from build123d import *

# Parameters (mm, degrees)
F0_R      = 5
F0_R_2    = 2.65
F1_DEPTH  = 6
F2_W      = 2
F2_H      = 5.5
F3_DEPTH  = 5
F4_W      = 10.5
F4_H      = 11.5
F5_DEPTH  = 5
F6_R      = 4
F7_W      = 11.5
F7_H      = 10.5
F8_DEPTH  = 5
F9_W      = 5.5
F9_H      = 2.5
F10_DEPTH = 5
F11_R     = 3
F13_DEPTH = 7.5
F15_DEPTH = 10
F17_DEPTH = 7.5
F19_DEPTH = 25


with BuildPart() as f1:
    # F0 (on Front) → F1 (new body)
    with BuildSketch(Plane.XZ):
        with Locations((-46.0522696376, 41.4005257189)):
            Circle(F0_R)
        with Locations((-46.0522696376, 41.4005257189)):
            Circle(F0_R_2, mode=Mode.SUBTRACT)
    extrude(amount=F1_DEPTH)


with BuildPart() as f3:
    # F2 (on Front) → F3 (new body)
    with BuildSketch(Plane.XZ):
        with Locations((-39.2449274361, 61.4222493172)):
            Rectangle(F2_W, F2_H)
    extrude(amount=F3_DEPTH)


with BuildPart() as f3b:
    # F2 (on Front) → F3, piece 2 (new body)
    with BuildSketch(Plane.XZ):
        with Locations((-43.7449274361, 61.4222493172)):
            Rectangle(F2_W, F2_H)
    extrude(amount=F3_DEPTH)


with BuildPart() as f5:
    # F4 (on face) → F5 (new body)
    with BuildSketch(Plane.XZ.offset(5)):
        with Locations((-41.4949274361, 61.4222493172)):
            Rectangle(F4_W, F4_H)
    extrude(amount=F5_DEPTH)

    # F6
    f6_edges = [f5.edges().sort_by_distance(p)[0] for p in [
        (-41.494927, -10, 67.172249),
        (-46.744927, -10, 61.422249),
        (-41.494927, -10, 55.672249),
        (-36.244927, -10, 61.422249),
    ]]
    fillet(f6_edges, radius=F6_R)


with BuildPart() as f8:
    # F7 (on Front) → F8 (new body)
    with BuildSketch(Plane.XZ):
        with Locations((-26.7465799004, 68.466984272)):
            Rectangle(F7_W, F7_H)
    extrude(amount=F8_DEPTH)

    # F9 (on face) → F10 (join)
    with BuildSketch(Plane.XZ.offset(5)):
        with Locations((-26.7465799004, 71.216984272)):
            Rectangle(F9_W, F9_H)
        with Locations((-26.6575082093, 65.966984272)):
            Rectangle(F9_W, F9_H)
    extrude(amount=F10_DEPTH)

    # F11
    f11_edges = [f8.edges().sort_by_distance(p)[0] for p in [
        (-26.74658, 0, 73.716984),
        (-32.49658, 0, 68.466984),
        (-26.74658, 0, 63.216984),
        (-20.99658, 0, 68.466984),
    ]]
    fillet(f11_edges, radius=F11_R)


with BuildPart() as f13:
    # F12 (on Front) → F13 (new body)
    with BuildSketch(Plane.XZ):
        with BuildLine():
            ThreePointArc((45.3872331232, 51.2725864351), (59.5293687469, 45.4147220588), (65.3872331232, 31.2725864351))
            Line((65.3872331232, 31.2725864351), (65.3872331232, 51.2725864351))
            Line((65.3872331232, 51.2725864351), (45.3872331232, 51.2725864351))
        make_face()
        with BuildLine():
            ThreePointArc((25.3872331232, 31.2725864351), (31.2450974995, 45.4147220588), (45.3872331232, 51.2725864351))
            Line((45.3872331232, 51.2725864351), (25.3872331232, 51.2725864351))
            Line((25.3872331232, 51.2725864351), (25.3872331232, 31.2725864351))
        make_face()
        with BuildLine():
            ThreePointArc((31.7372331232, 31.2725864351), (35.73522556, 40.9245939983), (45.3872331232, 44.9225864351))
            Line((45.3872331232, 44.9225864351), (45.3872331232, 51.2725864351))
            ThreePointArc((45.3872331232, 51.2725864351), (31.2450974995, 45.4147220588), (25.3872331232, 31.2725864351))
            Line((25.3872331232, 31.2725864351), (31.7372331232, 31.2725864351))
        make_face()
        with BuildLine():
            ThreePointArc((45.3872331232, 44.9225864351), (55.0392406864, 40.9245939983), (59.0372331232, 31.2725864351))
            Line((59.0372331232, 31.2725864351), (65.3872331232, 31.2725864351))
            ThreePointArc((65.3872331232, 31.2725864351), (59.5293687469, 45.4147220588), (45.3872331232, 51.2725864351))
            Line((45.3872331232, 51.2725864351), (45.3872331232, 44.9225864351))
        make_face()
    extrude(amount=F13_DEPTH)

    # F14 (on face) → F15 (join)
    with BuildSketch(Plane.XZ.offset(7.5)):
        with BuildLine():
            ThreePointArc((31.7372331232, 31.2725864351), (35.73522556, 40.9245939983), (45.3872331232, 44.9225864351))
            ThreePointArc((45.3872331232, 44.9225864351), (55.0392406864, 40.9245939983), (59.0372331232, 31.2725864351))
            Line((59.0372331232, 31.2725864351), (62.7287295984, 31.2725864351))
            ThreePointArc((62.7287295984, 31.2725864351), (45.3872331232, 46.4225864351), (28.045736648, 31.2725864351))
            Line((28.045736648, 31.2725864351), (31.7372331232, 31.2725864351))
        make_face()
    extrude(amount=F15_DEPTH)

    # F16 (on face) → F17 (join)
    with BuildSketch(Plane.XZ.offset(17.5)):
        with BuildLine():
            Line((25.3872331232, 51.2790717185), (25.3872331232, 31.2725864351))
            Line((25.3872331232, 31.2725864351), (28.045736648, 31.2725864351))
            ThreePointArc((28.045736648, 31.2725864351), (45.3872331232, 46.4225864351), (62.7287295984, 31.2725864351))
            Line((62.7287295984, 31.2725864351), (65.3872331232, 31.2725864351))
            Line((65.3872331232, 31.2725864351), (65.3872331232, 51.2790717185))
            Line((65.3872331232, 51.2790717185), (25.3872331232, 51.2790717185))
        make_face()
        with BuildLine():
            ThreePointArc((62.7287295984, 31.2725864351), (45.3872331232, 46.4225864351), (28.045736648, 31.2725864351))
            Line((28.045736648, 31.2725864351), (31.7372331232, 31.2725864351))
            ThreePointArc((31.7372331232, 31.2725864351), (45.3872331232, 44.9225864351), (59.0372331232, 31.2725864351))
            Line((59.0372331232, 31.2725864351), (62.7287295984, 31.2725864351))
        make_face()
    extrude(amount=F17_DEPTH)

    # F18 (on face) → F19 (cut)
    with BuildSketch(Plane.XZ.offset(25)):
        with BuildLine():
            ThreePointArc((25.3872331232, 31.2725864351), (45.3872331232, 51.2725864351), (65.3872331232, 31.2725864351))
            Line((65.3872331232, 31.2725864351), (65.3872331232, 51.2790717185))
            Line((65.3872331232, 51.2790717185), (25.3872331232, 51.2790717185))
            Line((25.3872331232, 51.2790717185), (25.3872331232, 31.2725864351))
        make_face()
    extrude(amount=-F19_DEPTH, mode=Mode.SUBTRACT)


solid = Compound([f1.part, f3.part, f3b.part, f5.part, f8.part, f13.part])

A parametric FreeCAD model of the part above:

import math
import FreeCAD as App
import Part
import Sketcher
Q = App.Units.Quantity


def edges_at(feature, points):
    """Names of the edges that pass closest to the given points."""
    edges = feature.Shape.Edges
    near = lambda p: min(range(len(edges)), key=lambda i: edges[i].distToShape(Part.Vertex(*p))[0])
    return sorted({f"Edge{near(p) + 1}" for p in points})

doc = App.newDocument("Part")
body = doc.addObject("PartDesign::Body", "Body")

# Sketch on XZ plane
sketch1 = body.newObject("Sketcher::SketchObject", "Sketch")
sketch1.AttachmentSupport = (doc.getObject("XZ_Plane"), [""])
sketch1.MapMode = "FlatFace"
sketch1.addGeometry(Part.Circle(App.Vector(-46.05227, 41.400526, 0), App.Vector(0, 0, 1), 5), False)
sketch1.addGeometry(Part.Circle(App.Vector(-46.05227, 41.400526, 0), App.Vector(0, 0, 1), 2.65), False)
sketch1.addConstraint(Sketcher.Constraint("Coincident", 1, 3, 0, 3))
sketch1.addConstraint(Sketcher.Constraint("Diameter", 0, Q("10 mm")))
sketch1.addConstraint(Sketcher.Constraint("Diameter", 1, Q("5.3 mm")))
sketch1.addConstraint(Sketcher.Constraint("DistanceX", 0, 3, -1, 1, Q("46.05227 mm")))
sketch1.addConstraint(Sketcher.Constraint("DistanceY", -1, 1, 0, 3, Q("41.400526 mm")))
pad1 = body.newObject("PartDesign::Pad", "Pad")
pad1.Profile = sketch1
pad1.Length = 6
body2 = doc.addObject("PartDesign::Body", "Body001")

# Sketch on XZ plane
sketch2 = body2.newObject("Sketcher::SketchObject", "Sketch001")
sketch2.AttachmentSupport = (doc.getObject("XZ_Plane001"), [""])
sketch2.MapMode = "FlatFace"
sketch2.addGeometry(Part.LineSegment(App.Vector(-40.244927, 64.172249, 0), App.Vector(-40.244927, 58.672249, 0)), False)
sketch2.addGeometry(Part.LineSegment(App.Vector(-40.244927, 58.672249, 0), App.Vector(-38.244927, 58.672249, 0)), False)
sketch2.addGeometry(Part.LineSegment(App.Vector(-38.244927, 58.672249, 0), App.Vector(-38.244927, 64.172249, 0)), False)
sketch2.addGeometry(Part.LineSegment(App.Vector(-38.244927, 64.172249, 0), App.Vector(-40.244927, 64.172249, 0)), False)
sketch2.addConstraint(Sketcher.Constraint("Coincident", 0, 2, 1, 1))
sketch2.addConstraint(Sketcher.Constraint("Coincident", 1, 2, 2, 1))
sketch2.addConstraint(Sketcher.Constraint("Coincident", 2, 2, 3, 1))
sketch2.addConstraint(Sketcher.Constraint("Coincident", 3, 2, 0, 1))
sketch2.addConstraint(Sketcher.Constraint("Vertical", 0))
sketch2.addConstraint(Sketcher.Constraint("Horizontal", 1))
sketch2.addConstraint(Sketcher.Constraint("Vertical", 2))
sketch2.addConstraint(Sketcher.Constraint("Horizontal", 3))
sketch2.addConstraint(Sketcher.Constraint("DistanceX", 1, 1, 1, 2, Q("2 mm")))
sketch2.addConstraint(Sketcher.Constraint("DistanceY", 0, 2, 0, 1, Q("5.5 mm")))
sketch2.addConstraint(Sketcher.Constraint("DistanceY", -1, 1, 0, 2, Q("58.672249 mm")))
sketch2.addConstraint(Sketcher.Constraint("DistanceX", 0, 2, -1, 1, Q("40.244927 mm")))
pad2 = body2.newObject("PartDesign::Pad", "Pad001")
pad2.Profile = sketch2
pad2.Length = 5
body3 = doc.addObject("PartDesign::Body", "Body002")

# Sketch on XZ plane
sketch3 = body3.newObject("Sketcher::SketchObject", "Sketch002")
sketch3.AttachmentSupport = (doc.getObject("XZ_Plane002"), [""])
sketch3.MapMode = "FlatFace"
sketch3.addGeometry(Part.LineSegment(App.Vector(-44.744927, 64.172249, 0), App.Vector(-44.744927, 58.672249, 0)), False)
sketch3.addGeometry(Part.LineSegment(App.Vector(-44.744927, 58.672249, 0), App.Vector(-42.744927, 58.672249, 0)), False)
sketch3.addGeometry(Part.LineSegment(App.Vector(-42.744927, 58.672249, 0), App.Vector(-42.744927, 64.172249, 0)), False)
sketch3.addGeometry(Part.LineSegment(App.Vector(-42.744927, 64.172249, 0), App.Vector(-44.744927, 64.172249, 0)), False)
sketch3.addConstraint(Sketcher.Constraint("Coincident", 0, 2, 1, 1))
sketch3.addConstraint(Sketcher.Constraint("Coincident", 1, 2, 2, 1))
sketch3.addConstraint(Sketcher.Constraint("Coincident", 2, 2, 3, 1))
sketch3.addConstraint(Sketcher.Constraint("Coincident", 3, 2, 0, 1))
sketch3.addConstraint(Sketcher.Constraint("Vertical", 0))
sketch3.addConstraint(Sketcher.Constraint("Horizontal", 1))
sketch3.addConstraint(Sketcher.Constraint("Vertical", 2))
sketch3.addConstraint(Sketcher.Constraint("Horizontal", 3))
sketch3.addConstraint(Sketcher.Constraint("DistanceX", 1, 1, 1, 2, Q("2 mm")))
sketch3.addConstraint(Sketcher.Constraint("DistanceY", 0, 2, 0, 1, Q("5.5 mm")))
sketch3.addConstraint(Sketcher.Constraint("DistanceY", -1, 1, 0, 2, Q("58.672249 mm")))
sketch3.addConstraint(Sketcher.Constraint("DistanceX", 0, 2, -1, 1, Q("44.744927 mm")))
pad3 = body3.newObject("PartDesign::Pad", "Pad002")
pad3.Profile = sketch3
pad3.Length = 5
body4 = doc.addObject("PartDesign::Body", "Body003")

# Sketch on XZ plane
sketch4 = body4.newObject("Sketcher::SketchObject", "Sketch003")
sketch4.AttachmentSupport = (doc.getObject("XZ_Plane003"), [""])
sketch4.MapMode = "FlatFace"
sketch4.AttachmentOffset = App.Placement(App.Vector(0, 0, 5), App.Rotation())
sketch4.addGeometry(Part.LineSegment(App.Vector(-46.744927, 67.172249, 0), App.Vector(-46.744927, 55.672249, 0)), False)
sketch4.addGeometry(Part.LineSegment(App.Vector(-46.744927, 55.672249, 0), App.Vector(-36.244927, 55.672249, 0)), False)
sketch4.addGeometry(Part.LineSegment(App.Vector(-36.244927, 55.672249, 0), App.Vector(-36.244927, 67.172249, 0)), False)
sketch4.addGeometry(Part.LineSegment(App.Vector(-36.244927, 67.172249, 0), App.Vector(-46.744927, 67.172249, 0)), False)
sketch4.addConstraint(Sketcher.Constraint("Coincident", 0, 2, 1, 1))
sketch4.addConstraint(Sketcher.Constraint("Coincident", 1, 2, 2, 1))
sketch4.addConstraint(Sketcher.Constraint("Coincident", 2, 2, 3, 1))
sketch4.addConstraint(Sketcher.Constraint("Coincident", 3, 2, 0, 1))
sketch4.addConstraint(Sketcher.Constraint("Vertical", 0))
sketch4.addConstraint(Sketcher.Constraint("Horizontal", 1))
sketch4.addConstraint(Sketcher.Constraint("Vertical", 2))
sketch4.addConstraint(Sketcher.Constraint("Horizontal", 3))
sketch4.addConstraint(Sketcher.Constraint("DistanceX", 1, 1, 1, 2, Q("10.5 mm")))
sketch4.addConstraint(Sketcher.Constraint("DistanceY", 0, 2, 0, 1, Q("11.5 mm")))
sketch4.addConstraint(Sketcher.Constraint("DistanceY", -1, 1, 0, 2, Q("55.672249 mm")))
sketch4.addConstraint(Sketcher.Constraint("DistanceX", 0, 2, -1, 1, Q("46.744927 mm")))
pad4 = body4.newObject("PartDesign::Pad", "Pad003")
pad4.Profile = sketch4
pad4.Length = 5
doc.recompute()

fillet = body4.newObject("PartDesign::Fillet", "Fillet")
fillet.Base = (pad4, edges_at(pad4, [
    (-41.495, -10, 67.172),
    (-46.745, -10, 61.422),
    (-41.495, -10, 55.672),
    (-36.245, -10, 61.422),
]))
fillet.Radius = 4
body5 = doc.addObject("PartDesign::Body", "Body004")

# Sketch on XZ plane
sketch5 = body5.newObject("Sketcher::SketchObject", "Sketch004")
sketch5.AttachmentSupport = (doc.getObject("XZ_Plane004"), [""])
sketch5.MapMode = "FlatFace"
sketch5.addGeometry(Part.LineSegment(App.Vector(-32.49658, 73.716984, 0), App.Vector(-32.49658, 63.216984, 0)), False)
sketch5.addGeometry(Part.LineSegment(App.Vector(-32.49658, 63.216984, 0), App.Vector(-20.99658, 63.216984, 0)), False)
sketch5.addGeometry(Part.LineSegment(App.Vector(-20.99658, 63.216984, 0), App.Vector(-20.99658, 73.716984, 0)), False)
sketch5.addGeometry(Part.LineSegment(App.Vector(-20.99658, 73.716984, 0), App.Vector(-32.49658, 73.716984, 0)), False)
sketch5.addConstraint(Sketcher.Constraint("Coincident", 0, 2, 1, 1))
sketch5.addConstraint(Sketcher.Constraint("Coincident", 1, 2, 2, 1))
sketch5.addConstraint(Sketcher.Constraint("Coincident", 2, 2, 3, 1))
sketch5.addConstraint(Sketcher.Constraint("Coincident", 3, 2, 0, 1))
sketch5.addConstraint(Sketcher.Constraint("Vertical", 0))
sketch5.addConstraint(Sketcher.Constraint("Horizontal", 1))
sketch5.addConstraint(Sketcher.Constraint("Vertical", 2))
sketch5.addConstraint(Sketcher.Constraint("Horizontal", 3))
sketch5.addConstraint(Sketcher.Constraint("DistanceX", 1, 1, 1, 2, Q("11.5 mm")))
sketch5.addConstraint(Sketcher.Constraint("DistanceY", 0, 2, 0, 1, Q("10.5 mm")))
sketch5.addConstraint(Sketcher.Constraint("DistanceX", 0, 2, -1, 1, Q("32.49658 mm")))
sketch5.addConstraint(Sketcher.Constraint("DistanceY", -1, 1, 0, 2, Q("63.216984 mm")))
pad5 = body5.newObject("PartDesign::Pad", "Pad004")
pad5.Profile = sketch5
pad5.Length = 5

# Sketch on XZ plane
sketch6 = body5.newObject("Sketcher::SketchObject", "Sketch005")
sketch6.AttachmentSupport = (doc.getObject("XZ_Plane004"), [""])
sketch6.MapMode = "FlatFace"
sketch6.AttachmentOffset = App.Placement(App.Vector(0, 0, 5), App.Rotation())
sketch6.addGeometry(Part.LineSegment(App.Vector(-29.49658, 72.466984, 0), App.Vector(-29.49658, 69.966984, 0)), False)
sketch6.addGeometry(Part.LineSegment(App.Vector(-29.49658, 69.966984, 0), App.Vector(-23.99658, 69.966984, 0)), False)
sketch6.addGeometry(Part.LineSegment(App.Vector(-23.99658, 69.966984, 0), App.Vector(-23.99658, 72.466984, 0)), False)
sketch6.addGeometry(Part.LineSegment(App.Vector(-23.99658, 72.466984, 0), App.Vector(-29.49658, 72.466984, 0)), False)
sketch6.addGeometry(Part.LineSegment(App.Vector(-29.407508, 67.216984, 0), App.Vector(-29.407508, 64.716984, 0)), False)
sketch6.addGeometry(Part.LineSegment(App.Vector(-29.407508, 64.716984, 0), App.Vector(-23.907508, 64.716984, 0)), False)
sketch6.addGeometry(Part.LineSegment(App.Vector(-23.907508, 64.716984, 0), App.Vector(-23.907508, 67.216984, 0)), False)
sketch6.addGeometry(Part.LineSegment(App.Vector(-23.907508, 67.216984, 0), App.Vector(-29.407508, 67.216984, 0)), False)
sketch6.addConstraint(Sketcher.Constraint("Coincident", 0, 2, 1, 1))
sketch6.addConstraint(Sketcher.Constraint("Coincident", 1, 2, 2, 1))
sketch6.addConstraint(Sketcher.Constraint("Coincident", 2, 2, 3, 1))
sketch6.addConstraint(Sketcher.Constraint("Coincident", 3, 2, 0, 1))
sketch6.addConstraint(Sketcher.Constraint("Coincident", 4, 2, 5, 1))
sketch6.addConstraint(Sketcher.Constraint("Coincident", 5, 2, 6, 1))
sketch6.addConstraint(Sketcher.Constraint("Coincident", 6, 2, 7, 1))
sketch6.addConstraint(Sketcher.Constraint("Coincident", 7, 2, 4, 1))
sketch6.addConstraint(Sketcher.Constraint("Vertical", 0))
sketch6.addConstraint(Sketcher.Constraint("Horizontal", 1))
sketch6.addConstraint(Sketcher.Constraint("Vertical", 2))
sketch6.addConstraint(Sketcher.Constraint("Horizontal", 3))
sketch6.addConstraint(Sketcher.Constraint("Vertical", 4))
sketch6.addConstraint(Sketcher.Constraint("Horizontal", 5))
sketch6.addConstraint(Sketcher.Constraint("Vertical", 6))
sketch6.addConstraint(Sketcher.Constraint("Horizontal", 7))
sketch6.addConstraint(Sketcher.Constraint("Equal", 3, 5))
sketch6.addConstraint(Sketcher.Constraint("Equal", 2, 4))
sketch6.addConstraint(Sketcher.Constraint("DistanceX", 1, 1, 1, 2, Q("5.5 mm")))
sketch6.addConstraint(Sketcher.Constraint("DistanceY", 0, 2, 0, 1, Q("2.5 mm")))
sketch6.addConstraint(Sketcher.Constraint("DistanceY", 4, 2, 0, 2, Q("5.25 mm")))
sketch6.addConstraint(Sketcher.Constraint("DistanceX", 0, 2, -1, 1, Q("29.49658 mm")))
sketch6.addConstraint(Sketcher.Constraint("DistanceX", 4, 2, -1, 1, Q("29.407508 mm")))
sketch6.addConstraint(Sketcher.Constraint("DistanceY", -1, 1, 0, 2, Q("69.966984 mm")))
pad6 = body5.newObject("PartDesign::Pad", "Pad005")
pad6.Profile = sketch6
pad6.Length = 5
doc.recompute()

fillet2 = body5.newObject("PartDesign::Fillet", "Fillet001")
fillet2.Base = (pad6, edges_at(pad6, [
    (-26.747, 0, 73.717),
    (-32.497, 0, 68.467),
    (-26.747, 0, 63.217),
    (-20.997, 0, 68.467),
]))
fillet2.Radius = 3
body6 = doc.addObject("PartDesign::Body", "Body005")

# Sketch on XZ plane
sketch7 = body6.newObject("Sketcher::SketchObject", "Sketch006")
sketch7.AttachmentSupport = (doc.getObject("XZ_Plane005"), [""])
sketch7.MapMode = "FlatFace"
sketch7.addGeometry(Part.LineSegment(App.Vector(65.387233, 31.272586, 0), App.Vector(65.387233, 51.272586, 0)), False)
sketch7.addGeometry(Part.LineSegment(App.Vector(65.387233, 51.272586, 0), App.Vector(25.387233, 51.272586, 0)), False)
sketch7.addGeometry(Part.LineSegment(App.Vector(25.387233, 51.272586, 0), App.Vector(25.387233, 31.272586, 0)), False)
sketch7.addGeometry(Part.LineSegment(App.Vector(25.387233, 31.272586, 0), App.Vector(31.737233, 31.272586, 0)), False)
sketch7.addGeometry(Part.ArcOfCircle(Part.Circle(App.Vector(45.387233, 31.272586, 0), App.Vector(0, 0, 1), 13.65), math.radians(90), math.radians(180)), False)
sketch7.addGeometry(Part.ArcOfCircle(Part.Circle(App.Vector(45.387233, 31.272586, 0), App.Vector(0, 0, 1), 13.65), math.radians(0), math.radians(90)), False)
sketch7.addGeometry(Part.LineSegment(App.Vector(59.037233, 31.272586, 0), App.Vector(65.387233, 31.272586, 0)), False)
sketch7.addConstraint(Sketcher.Constraint("Coincident", 0, 2, 1, 1))
sketch7.addConstraint(Sketcher.Constraint("Coincident", 1, 2, 2, 1))
sketch7.addConstraint(Sketcher.Constraint("Coincident", 2, 2, 3, 1))
sketch7.addConstraint(Sketcher.Constraint("Coincident", 3, 2, 4, 2))
sketch7.addConstraint(Sketcher.Constraint("Tangent", 4, 1, 5, 2))
sketch7.addConstraint(Sketcher.Constraint("Coincident", 5, 1, 6, 1))
sketch7.addConstraint(Sketcher.Constraint("Coincident", 6, 2, 0, 1))
sketch7.addConstraint(Sketcher.Constraint("Vertical", 0))
sketch7.addConstraint(Sketcher.Constraint("Horizontal", 1))
sketch7.addConstraint(Sketcher.Constraint("Vertical", 2))
sketch7.addConstraint(Sketcher.Constraint("Horizontal", 3))
sketch7.addConstraint(Sketcher.Constraint("Horizontal", 6))
sketch7.addConstraint(Sketcher.Constraint("Equal", 4, 5))
sketch7.addConstraint(Sketcher.Constraint("Horizontal", 5, 3, 2, 2))
sketch7.addConstraint(Sketcher.Constraint("Horizontal", 3, 2, 5, 1))
sketch7.addConstraint(Sketcher.Constraint("Vertical", 5, 3, 4, 1))
sketch7.addConstraint(Sketcher.Constraint("Equal", 3, 6))
sketch7.addConstraint(Sketcher.Constraint("DistanceX", 1, 2, 1, 1, Q("40 mm")))
sketch7.addConstraint(Sketcher.Constraint("DistanceY", 0, 1, 0, 2, Q("20 mm")))
sketch7.addConstraint(Sketcher.Constraint("Radius", 4, Q("13.65 mm")))
sketch7.addConstraint(Sketcher.Constraint("DistanceX", -1, 1, 4, 3, Q("45.387233 mm")))
sketch7.addConstraint(Sketcher.Constraint("DistanceY", -1, 1, 4, 3, Q("31.272586 mm")))
pad7 = body6.newObject("PartDesign::Pad", "Pad006")
pad7.Profile = sketch7
pad7.Length = 7.5

# Sketch on XZ plane
sketch8 = body6.newObject("Sketcher::SketchObject", "Sketch007")
sketch8.AttachmentSupport = (doc.getObject("XZ_Plane005"), [""])
sketch8.MapMode = "FlatFace"
sketch8.AttachmentOffset = App.Placement(App.Vector(0, 0, 7.5), App.Rotation())
sketch8.addGeometry(Part.ArcOfCircle(Part.Circle(App.Vector(45.387233, 31.272586, 0), App.Vector(0, 0, 1), 13.65), math.radians(90), math.radians(180)), False)
sketch8.addGeometry(Part.ArcOfCircle(Part.Circle(App.Vector(45.387233, 31.272586, 0), App.Vector(0, 0, 1), 13.65), math.radians(0), math.radians(90)), False)
sketch8.addGeometry(Part.LineSegment(App.Vector(59.037233, 31.272586, 0), App.Vector(62.72873, 31.272586, 0)), False)
sketch8.addGeometry(Part.ArcOfCircle(Part.Circle(App.Vector(45.387233, 28.922586, 0), App.Vector(0, 0, 1), 17.5), math.radians(7.717318), math.radians(172.282682)), False)
sketch8.addGeometry(Part.LineSegment(App.Vector(28.045737, 31.272586, 0), App.Vector(31.737233, 31.272586, 0)), False)
sketch8.addConstraint(Sketcher.Constraint("Tangent", 0, 1, 1, 2))
sketch8.addConstraint(Sketcher.Constraint("Coincident", 1, 1, 2, 1))
sketch8.addConstraint(Sketcher.Constraint("Coincident", 2, 2, 3, 1))
sketch8.addConstraint(Sketcher.Constraint("Coincident", 3, 2, 4, 1))
sketch8.addConstraint(Sketcher.Constraint("Coincident", 4, 2, 0, 2))
sketch8.addConstraint(Sketcher.Constraint("Horizontal", 2))
sketch8.addConstraint(Sketcher.Constraint("Horizontal", 4))
sketch8.addConstraint(Sketcher.Constraint("Equal", 0, 1))
sketch8.addConstraint(Sketcher.Constraint("Horizontal", 0, 3, 1, 1))
sketch8.addConstraint(Sketcher.Constraint("Horizontal", 2, 2, 3, 2))
sketch8.addConstraint(Sketcher.Constraint("Vertical", 1, 3, 3, 3))
sketch8.addConstraint(Sketcher.Constraint("Vertical", 3, 3, 0, 1))
sketch8.addConstraint(Sketcher.Constraint("Radius", 3, Q("17.5 mm")))
sketch8.addConstraint(Sketcher.Constraint("Radius", 0, Q("13.65 mm")))
sketch8.addConstraint(Sketcher.Constraint("DistanceY", 3, 3, 0, 1, Q("16 mm")))
sketch8.addConstraint(Sketcher.Constraint("DistanceX", -1, 1, 2, 2, Q("62.72873 mm")))
sketch8.addConstraint(Sketcher.Constraint("DistanceY", -1, 1, 0, 3, Q("31.272586 mm")))
pad8 = body6.newObject("PartDesign::Pad", "Pad007")
pad8.Profile = sketch8
pad8.Length = 10

# Sketch on XZ plane
sketch9 = body6.newObject("Sketcher::SketchObject", "Sketch008")
sketch9.AttachmentSupport = (doc.getObject("XZ_Plane005"), [""])
sketch9.MapMode = "FlatFace"
sketch9.AttachmentOffset = App.Placement(App.Vector(0, 0, 17.5), App.Rotation())
sketch9.addGeometry(Part.LineSegment(App.Vector(25.387233, 51.279072, 0), App.Vector(25.387233, 31.272586, 0)), False)
sketch9.addGeometry(Part.LineSegment(App.Vector(25.387233, 31.272586, 0), App.Vector(31.737233, 31.272586, 0)), False)
sketch9.addGeometry(Part.ArcOfCircle(Part.Circle(App.Vector(45.387233, 31.272586, 0), App.Vector(0, 0, 1), 13.65), math.radians(0), math.radians(180)), False)
sketch9.addGeometry(Part.LineSegment(App.Vector(59.037233, 31.272586, 0), App.Vector(65.387233, 31.272586, 0)), False)
sketch9.addGeometry(Part.LineSegment(App.Vector(65.387233, 31.272586, 0), App.Vector(65.387233, 51.279072, 0)), False)
sketch9.addGeometry(Part.LineSegment(App.Vector(65.387233, 51.279072, 0), App.Vector(25.387233, 51.279072, 0)), False)
sketch9.addConstraint(Sketcher.Constraint("Coincident", 0, 2, 1, 1))
sketch9.addConstraint(Sketcher.Constraint("Coincident", 1, 2, 2, 2))
sketch9.addConstraint(Sketcher.Constraint("Coincident", 2, 1, 3, 1))
sketch9.addConstraint(Sketcher.Constraint("Coincident", 3, 2, 4, 1))
sketch9.addConstraint(Sketcher.Constraint("Coincident", 4, 2, 5, 1))
sketch9.addConstraint(Sketcher.Constraint("Coincident", 5, 2, 0, 1))
sketch9.addConstraint(Sketcher.Constraint("Vertical", 0))
sketch9.addConstraint(Sketcher.Constraint("Horizontal", 1))
sketch9.addConstraint(Sketcher.Constraint("Horizontal", 3))
sketch9.addConstraint(Sketcher.Constraint("Vertical", 4))
sketch9.addConstraint(Sketcher.Constraint("Horizontal", 5))
sketch9.addConstraint(Sketcher.Constraint("Horizontal", 2, 3, 0, 2))
sketch9.addConstraint(Sketcher.Constraint("Horizontal", 1, 2, 2, 1))
sketch9.addConstraint(Sketcher.Constraint("Equal", 1, 3))
sketch9.addConstraint(Sketcher.Constraint("DistanceX", 5, 2, 5, 1, Q("40 mm")))
sketch9.addConstraint(Sketcher.Constraint("Radius", 2, Q("13.65 mm")))
sketch9.addConstraint(Sketcher.Constraint("DistanceY", 0, 2, 0, 1, Q("20.006485 mm")))
sketch9.addConstraint(Sketcher.Constraint("DistanceY", -1, 1, 4, 2, Q("51.279072 mm")))
sketch9.addConstraint(Sketcher.Constraint("DistanceX", -1, 1, 2, 3, Q("45.387233 mm")))
pad9 = body6.newObject("PartDesign::Pad", "Pad008")
pad9.Profile = sketch9
pad9.Length = 7.5

# Sketch on XZ plane
sketch10 = body6.newObject("Sketcher::SketchObject", "Sketch009")
sketch10.AttachmentSupport = (doc.getObject("XZ_Plane005"), [""])
sketch10.MapMode = "FlatFace"
sketch10.AttachmentOffset = App.Placement(App.Vector(0, 0, 25), App.Rotation())
sketch10.addGeometry(Part.ArcOfCircle(Part.Circle(App.Vector(45.387233, 31.272586, 0), App.Vector(0, 0, 1), 20), math.radians(0), math.radians(180)), False)
sketch10.addGeometry(Part.LineSegment(App.Vector(65.387233, 31.272586, 0), App.Vector(65.387233, 51.279072, 0)), False)
sketch10.addGeometry(Part.LineSegment(App.Vector(65.387233, 51.279072, 0), App.Vector(25.387233, 51.279072, 0)), False)
sketch10.addGeometry(Part.LineSegment(App.Vector(25.387233, 51.279072, 0), App.Vector(25.387233, 31.272586, 0)), False)
sketch10.addConstraint(Sketcher.Constraint("Tangent", 0, 1, 1, 1))
sketch10.addConstraint(Sketcher.Constraint("Coincident", 1, 2, 2, 1))
sketch10.addConstraint(Sketcher.Constraint("Coincident", 2, 2, 3, 1))
sketch10.addConstraint(Sketcher.Constraint("Tangent", 3, 2, 0, 2))
sketch10.addConstraint(Sketcher.Constraint("Vertical", 1))
sketch10.addConstraint(Sketcher.Constraint("Horizontal", 2))
sketch10.addConstraint(Sketcher.Constraint("Vertical", 3))
sketch10.addConstraint(Sketcher.Constraint("Radius", 0, Q("20 mm")))
sketch10.addConstraint(Sketcher.Constraint("DistanceY", 1, 1, 1, 2, Q("20.006485 mm")))
sketch10.addConstraint(Sketcher.Constraint("DistanceY", -1, 1, 1, 2, Q("51.279072 mm")))
sketch10.addConstraint(Sketcher.Constraint("DistanceX", -1, 1, 0, 3, Q("45.387233 mm")))
pocket1 = body6.newObject("PartDesign::Pocket", "Pocket")
pocket1.Profile = sketch10
pocket1.Length = 25

doc.recompute()
